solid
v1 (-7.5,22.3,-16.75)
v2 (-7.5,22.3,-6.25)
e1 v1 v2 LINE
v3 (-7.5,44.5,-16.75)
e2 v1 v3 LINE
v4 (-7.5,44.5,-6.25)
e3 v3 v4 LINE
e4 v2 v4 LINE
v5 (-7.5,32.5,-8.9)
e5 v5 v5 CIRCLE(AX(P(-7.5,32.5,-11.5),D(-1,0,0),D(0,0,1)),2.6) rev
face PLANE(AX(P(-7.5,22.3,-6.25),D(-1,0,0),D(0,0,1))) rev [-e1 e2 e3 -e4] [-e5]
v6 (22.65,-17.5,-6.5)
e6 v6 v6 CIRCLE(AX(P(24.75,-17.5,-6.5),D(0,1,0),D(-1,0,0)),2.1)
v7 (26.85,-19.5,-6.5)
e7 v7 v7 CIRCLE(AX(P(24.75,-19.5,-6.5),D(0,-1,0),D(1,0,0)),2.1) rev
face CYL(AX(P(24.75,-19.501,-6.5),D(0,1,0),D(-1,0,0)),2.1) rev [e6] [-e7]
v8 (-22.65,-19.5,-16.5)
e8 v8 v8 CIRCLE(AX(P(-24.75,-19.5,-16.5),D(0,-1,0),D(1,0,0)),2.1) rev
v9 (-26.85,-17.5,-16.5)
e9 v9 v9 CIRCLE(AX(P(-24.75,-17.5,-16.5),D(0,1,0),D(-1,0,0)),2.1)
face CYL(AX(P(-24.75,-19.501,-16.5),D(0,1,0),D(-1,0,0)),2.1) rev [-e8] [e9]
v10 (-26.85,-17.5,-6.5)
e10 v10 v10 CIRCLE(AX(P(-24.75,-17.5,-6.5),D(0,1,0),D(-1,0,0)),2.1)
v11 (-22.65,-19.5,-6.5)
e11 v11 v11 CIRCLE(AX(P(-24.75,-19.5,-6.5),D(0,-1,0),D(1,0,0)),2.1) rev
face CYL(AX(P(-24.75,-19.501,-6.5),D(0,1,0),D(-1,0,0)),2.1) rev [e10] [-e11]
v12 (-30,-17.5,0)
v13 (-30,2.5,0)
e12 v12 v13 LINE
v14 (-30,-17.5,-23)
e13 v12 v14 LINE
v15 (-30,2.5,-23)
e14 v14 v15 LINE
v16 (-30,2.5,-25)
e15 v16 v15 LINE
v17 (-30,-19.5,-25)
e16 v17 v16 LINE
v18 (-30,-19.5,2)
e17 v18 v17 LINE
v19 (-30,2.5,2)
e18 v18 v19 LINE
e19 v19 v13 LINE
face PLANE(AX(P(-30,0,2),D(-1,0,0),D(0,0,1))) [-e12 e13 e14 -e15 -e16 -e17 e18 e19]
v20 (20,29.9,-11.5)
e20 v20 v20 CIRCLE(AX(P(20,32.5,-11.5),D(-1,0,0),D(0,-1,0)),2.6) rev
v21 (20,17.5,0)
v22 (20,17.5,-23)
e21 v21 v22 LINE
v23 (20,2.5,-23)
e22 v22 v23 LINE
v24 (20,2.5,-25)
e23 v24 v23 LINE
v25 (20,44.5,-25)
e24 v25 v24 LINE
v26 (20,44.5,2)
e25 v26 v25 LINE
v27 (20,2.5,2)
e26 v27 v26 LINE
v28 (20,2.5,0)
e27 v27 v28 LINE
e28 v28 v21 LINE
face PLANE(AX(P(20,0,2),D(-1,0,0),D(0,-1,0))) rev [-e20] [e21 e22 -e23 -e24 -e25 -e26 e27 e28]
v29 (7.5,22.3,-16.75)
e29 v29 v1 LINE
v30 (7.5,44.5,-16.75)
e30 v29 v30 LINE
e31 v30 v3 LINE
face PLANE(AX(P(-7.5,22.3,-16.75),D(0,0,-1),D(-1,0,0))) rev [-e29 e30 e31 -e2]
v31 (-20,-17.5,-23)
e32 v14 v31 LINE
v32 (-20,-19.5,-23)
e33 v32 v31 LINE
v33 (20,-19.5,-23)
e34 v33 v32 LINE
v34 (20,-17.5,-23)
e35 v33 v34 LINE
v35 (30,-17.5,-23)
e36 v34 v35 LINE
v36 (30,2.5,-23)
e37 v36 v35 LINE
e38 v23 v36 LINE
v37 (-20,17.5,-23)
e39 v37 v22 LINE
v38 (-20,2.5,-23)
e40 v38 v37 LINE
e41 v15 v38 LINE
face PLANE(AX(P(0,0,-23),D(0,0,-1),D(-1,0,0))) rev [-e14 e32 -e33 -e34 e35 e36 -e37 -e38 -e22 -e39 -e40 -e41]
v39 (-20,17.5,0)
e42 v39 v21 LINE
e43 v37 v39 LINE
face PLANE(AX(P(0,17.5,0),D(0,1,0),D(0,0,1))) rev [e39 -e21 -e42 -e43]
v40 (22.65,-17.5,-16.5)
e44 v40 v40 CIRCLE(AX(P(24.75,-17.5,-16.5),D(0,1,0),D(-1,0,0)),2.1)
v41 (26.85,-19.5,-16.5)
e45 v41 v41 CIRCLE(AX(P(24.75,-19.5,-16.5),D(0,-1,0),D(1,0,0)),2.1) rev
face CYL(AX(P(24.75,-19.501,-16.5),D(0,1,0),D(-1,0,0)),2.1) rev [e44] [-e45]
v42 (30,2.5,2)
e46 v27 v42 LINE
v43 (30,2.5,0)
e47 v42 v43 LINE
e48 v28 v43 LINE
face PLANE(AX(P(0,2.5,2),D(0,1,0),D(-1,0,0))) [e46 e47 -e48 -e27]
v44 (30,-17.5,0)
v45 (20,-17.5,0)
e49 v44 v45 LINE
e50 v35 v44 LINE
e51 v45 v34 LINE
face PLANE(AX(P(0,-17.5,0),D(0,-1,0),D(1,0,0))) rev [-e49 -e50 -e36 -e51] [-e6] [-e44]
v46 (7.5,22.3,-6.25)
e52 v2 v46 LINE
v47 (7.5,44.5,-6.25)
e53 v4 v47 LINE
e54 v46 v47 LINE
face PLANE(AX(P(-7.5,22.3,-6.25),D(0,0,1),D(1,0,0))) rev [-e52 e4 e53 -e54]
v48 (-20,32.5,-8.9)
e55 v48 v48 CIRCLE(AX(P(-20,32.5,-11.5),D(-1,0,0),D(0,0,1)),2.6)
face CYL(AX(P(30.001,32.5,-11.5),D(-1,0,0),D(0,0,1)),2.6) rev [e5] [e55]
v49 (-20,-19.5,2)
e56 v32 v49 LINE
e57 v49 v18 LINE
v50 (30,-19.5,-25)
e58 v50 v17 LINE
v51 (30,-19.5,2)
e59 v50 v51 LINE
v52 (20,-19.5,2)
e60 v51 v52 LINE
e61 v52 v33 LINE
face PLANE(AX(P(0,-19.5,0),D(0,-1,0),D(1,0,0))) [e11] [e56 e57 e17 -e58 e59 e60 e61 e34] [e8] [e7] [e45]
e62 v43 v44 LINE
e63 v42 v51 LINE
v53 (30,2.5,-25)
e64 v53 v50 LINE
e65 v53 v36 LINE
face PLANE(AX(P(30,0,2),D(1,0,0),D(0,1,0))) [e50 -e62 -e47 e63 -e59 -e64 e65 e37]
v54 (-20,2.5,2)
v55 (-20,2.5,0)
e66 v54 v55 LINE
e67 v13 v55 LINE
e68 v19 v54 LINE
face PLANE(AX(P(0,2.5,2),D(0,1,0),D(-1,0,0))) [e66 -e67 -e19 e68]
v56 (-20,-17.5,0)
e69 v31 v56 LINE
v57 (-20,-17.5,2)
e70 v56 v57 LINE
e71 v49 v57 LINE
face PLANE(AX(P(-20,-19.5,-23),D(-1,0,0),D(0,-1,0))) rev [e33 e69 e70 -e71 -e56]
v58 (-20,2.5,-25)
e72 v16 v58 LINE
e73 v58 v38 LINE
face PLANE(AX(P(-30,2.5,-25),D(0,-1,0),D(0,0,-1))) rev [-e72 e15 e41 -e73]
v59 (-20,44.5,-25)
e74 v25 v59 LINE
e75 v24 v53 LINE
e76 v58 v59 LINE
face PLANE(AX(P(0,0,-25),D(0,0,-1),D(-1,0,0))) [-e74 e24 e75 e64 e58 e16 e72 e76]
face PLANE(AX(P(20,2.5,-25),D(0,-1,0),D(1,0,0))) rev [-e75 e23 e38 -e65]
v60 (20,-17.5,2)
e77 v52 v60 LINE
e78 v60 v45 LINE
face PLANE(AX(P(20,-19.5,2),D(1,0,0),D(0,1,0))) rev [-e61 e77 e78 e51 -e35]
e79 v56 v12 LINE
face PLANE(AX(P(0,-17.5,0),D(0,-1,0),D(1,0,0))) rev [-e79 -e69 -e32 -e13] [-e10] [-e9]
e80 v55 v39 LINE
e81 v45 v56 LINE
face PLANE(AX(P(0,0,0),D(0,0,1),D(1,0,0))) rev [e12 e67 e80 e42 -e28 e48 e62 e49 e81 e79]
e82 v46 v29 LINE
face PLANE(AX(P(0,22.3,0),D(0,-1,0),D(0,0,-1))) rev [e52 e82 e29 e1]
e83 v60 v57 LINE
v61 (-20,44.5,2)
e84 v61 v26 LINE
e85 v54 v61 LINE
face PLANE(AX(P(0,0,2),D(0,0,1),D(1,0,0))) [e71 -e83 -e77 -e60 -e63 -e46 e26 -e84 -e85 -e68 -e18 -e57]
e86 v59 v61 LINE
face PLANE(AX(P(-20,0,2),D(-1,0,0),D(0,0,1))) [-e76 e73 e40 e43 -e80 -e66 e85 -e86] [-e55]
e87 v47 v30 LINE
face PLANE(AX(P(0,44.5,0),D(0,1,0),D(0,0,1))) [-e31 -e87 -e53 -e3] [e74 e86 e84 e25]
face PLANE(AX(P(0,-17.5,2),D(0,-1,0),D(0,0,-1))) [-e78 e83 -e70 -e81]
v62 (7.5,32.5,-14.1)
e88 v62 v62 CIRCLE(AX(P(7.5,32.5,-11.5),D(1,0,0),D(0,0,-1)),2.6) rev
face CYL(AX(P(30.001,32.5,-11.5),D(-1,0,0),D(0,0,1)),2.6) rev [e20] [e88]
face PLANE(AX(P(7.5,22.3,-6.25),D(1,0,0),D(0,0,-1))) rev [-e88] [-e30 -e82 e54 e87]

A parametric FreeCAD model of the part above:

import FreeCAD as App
import Part
import Sketcher
from FreeCAD import Vector


def add_polygon(sketch, points):
    """Adds a closed chain of lines whose ends are joined by coincident constraints."""
    first, n = sketch.GeometryCount, len(points)
    for a, b in zip(points, points[1:] + points[:1]):
        sketch.addGeometry(Part.LineSegment(App.Vector(*a, 0), App.Vector(*b, 0)), False)
    for i in range(n):
        sketch.addConstraint(Sketcher.Constraint("Coincident", first + i, 2, first + (i + 1) % n, 1))

doc = App.newDocument("Part")
body = doc.addObject("PartDesign::Body", "Body")

sketch1 = body.newObject("Sketcher::SketchObject", "Sketch")
sketch1.AttachmentSupport = (doc.getObject("XY_Plane"), [""])
sketch1.MapMode = "FlatFace"
add_polygon(sketch1, [(-30, 2), (-30, -18), (30, -18), (30, 2), (20, 2), (20, 18), (-20, 18), (-20, 2)])
sketch1.addConstraint([
    Sketcher.Constraint("Vertical", 0),
    Sketcher.Constraint("Horizontal", 1),
    Sketcher.Constraint("Vertical", 2),
    Sketcher.Constraint("Horizontal", 3),
    Sketcher.Constraint("Vertical", 4),
    Sketcher.Constraint("Horizontal", 5),
    Sketcher.Constraint("Vertical", 6),
    Sketcher.Constraint("Horizontal", 7),
    Sketcher.Constraint("Symmetric", 3, 2, 6, 2, -2),
    Sketcher.Constraint("Equal", 3, 7),
    Sketcher.Constraint("DistanceX", 1, 1, 1, 2, 60.0),
    Sketcher.Constraint("DistanceX", 3, 2, 3, 1, 10.0),
    Sketcher.Constraint("DistanceY", 0, 2, 0, 1, 20.0),
    Sketcher.Constraint("DistanceY", 4, 1, 4, 2, 15.0),
    Sketcher.Constraint("DistanceY", 0, 2, -1, 1, 17.5),
])
pad1 = body.newObject("PartDesign::Pad", "Pad")
pad1.Profile = sketch1
pad1.Length = 2

sketch2 = body.newObject("Sketcher::SketchObject", "Sketch001")
sketch2.AttachmentSupport = (doc.getObject("XZ_Plane"), [""])
sketch2.MapMode = "FlatFace"
sketch2.AttachmentOffset = App.Placement(Vector(0, 0, 17.5), App.Rotation())
add_polygon(sketch2, [(-30, 2), (-30, -23), (-20, -23), (-20, 2)])
add_polygon(sketch2, [(20, 2), (20, -23), (30, -23), (30, 2)])
sketch2.addConstraint([
    Sketcher.Constraint("Vertical", 0),
    Sketcher.Constraint("Horizontal", 1),
    Sketcher.Constraint("Vertical", 2),
    Sketcher.Constraint("Horizontal", 3),
    Sketcher.Constraint("Vertical", 4),
    Sketcher.Constraint("Horizontal", 5),
    Sketcher.Constraint("Vertical", 6),
    Sketcher.Constraint("Horizontal", 7),
    Sketcher.Constraint("Symmetric", 1, 2, 4, 2, -2),
    Sketcher.Constraint("Symmetric", 3, 2, 6, 2, -2),
    Sketcher.Constraint("DistanceX", 1, 1, 1, 2, 10.0),
    Sketcher.Constraint("DistanceY", 0, 2, 0, 1, 25.0),
    Sketcher.Constraint("DistanceX", 0, 2, -1, 1, 30.0),
    Sketcher.Constraint("DistanceY", 0, 2, -1, 1, 23.0),
])
pad2 = body.newObject("PartDesign::Pad", "Pad001")
pad2.Profile = sketch2
pad2.Length = 2

sketch3 = body.newObject("Sketcher::SketchObject", "Sketch002")
sketch3.AttachmentSupport = (doc.getObject("XY_Plane"), [""])
sketch3.MapMode = "FlatFace"
sketch3.AttachmentOffset = App.Placement(Vector(0, 0, -23), App.Rotation())
add_polygon(sketch3, [(-30, -20), (-30, 2), (-20, 2), (-20, 18), (20, 18), (20, 2), (30, 2), (30, -20)])
sketch3.addConstraint([
    Sketcher.Constraint("Vertical", 0),
    Sketcher.Constraint("Horizontal", 1),
    Sketcher.Constraint("Vertical", 2),
    Sketcher.Constraint("Horizontal", 3),
    Sketcher.Constraint("Vertical", 4),
    Sketcher.Constraint("Horizontal", 5),
    Sketcher.Constraint("Vertical", 6),
    Sketcher.Constraint("Horizontal", 7),
    Sketcher.Constraint("Symmetric", 1, 2, 4, 2, -2),
    Sketcher.Constraint("Equal", 1, 5),
    Sketcher.Constraint("DistanceX", 1, 1, 1, 2, 10.0),
    Sketcher.Constraint("DistanceX", 3, 1, 3, 2, 40.0),
    Sketcher.Constraint("DistanceY", 0, 1, 0, 2, 22.0),
    Sketcher.Constraint("DistanceY", 2, 1, 2, 2, 15.0),
    Sketcher.Constraint("DistanceY", -1, 1, 0, 2, 2.5),
])
pad3 = body.newObject("PartDesign::Pad", "Pad002")
pad3.Profile = sketch3
pad3.Length = 2
pad3.Reversed = True

sketch4 = body.newObject("Sketcher::SketchObject", "Sketch003")
sketch4.AttachmentSupport = (doc.getObject("XZ_Plane"), [""])
sketch4.MapMode = "FlatFace"
sketch4.AttachmentOffset = App.Placement(Vector(0, 0, 17.5), App.Rotation())
sketch4.addGeometry(Part.Circle(Vector(24.8, -16.5, 0), Vector(0, 0, 1), 2.1), False)
sketch4.addConstraint([
    Sketcher.Constraint("Diameter", 0, 4.2),
    Sketcher.Constraint("DistanceY", 0, 3, -1, 1, 16.5),
    Sketcher.Constraint("DistanceX", -1, 1, 0, 3, 24.75),
])
pocket1 = body.newObject("PartDesign::Pocket", "Pocket")
pocket1.Profile = sketch4
pocket1.Type = "UpToFirst"
pocket1.Reversed = True

sketch5 = body.newObject("Sketcher::SketchObject", "Sketch004")
sketch5.AttachmentSupport = (doc.getObject("XZ_Plane"), [""])
sketch5.MapMode = "FlatFace"
sketch5.AttachmentOffset = App.Placement(Vector(0, 0, 17.5), App.Rotation())
sketch5.addGeometry(Part.Circle(Vector(24.8, -6.5, 0), Vector(0, 0, 1), 2.1), False)
sketch5.addConstraint([
    Sketcher.Constraint("Diameter", 0, 4.2),
    Sketcher.Constraint("DistanceY", 0, 3, -1, 1, 6.5),
    Sketcher.Constraint("DistanceX", -1, 1, 0, 3, 24.75),
])
pocket2 = body.newObject("PartDesign::Pocket", "Pocket001")
pocket2.Profile = sketch5
pocket2.Type = "UpToFirst"
pocket2.Reversed = True

sketch6 = body.newObject("Sketcher::SketchObject", "Sketch005")
sketch6.AttachmentSupport = (doc.getObject("XZ_Plane"), [""])
sketch6.MapMode = "FlatFace"
sketch6.AttachmentOffset = App.Placement(Vector(0, 0, 17.5), App.Rotation())
sketch6.addGeometry(Part.Circle(Vector(-24.8, -16.5, 0), Vector(0, 0, 1), 2.1), False)
sketch6.addConstraint([
    Sketcher.Constraint("Diameter", 0, 4.2),
    Sketcher.Constraint("DistanceY", 0, 3, -1, 1, 16.5),
    Sketcher.Constraint("DistanceX", 0, 3, -1, 1, 24.75),
])
pocket3 = body.newObject("PartDesign::Pocket", "Pocket002")
pocket3.Profile = sketch6
pocket3.Type = "UpToFirst"
pocket3.Reversed = True

sketch7 = body.newObject("Sketcher::SketchObject", "Sketch006")
sketch7.AttachmentSupport = (doc.getObject("XZ_Plane"), [""])
sketch7.MapMode = "FlatFace"
sketch7.AttachmentOffset = App.Placement(Vector(0, 0, 17.5), App.Rotation())
sketch7.addGeometry(Part.Circle(Vector(-24.8, -6.5, 0), Vector(0, 0, 1), 2.1), False)
sketch7.addConstraint([
    Sketcher.Constraint("Diameter", 0, 4.2),
    Sketcher.Constraint("DistanceY", 0, 3, -1, 1, 6.5),
    Sketcher.Constraint("DistanceX", 0, 3, -1, 1, 24.75),
])
pocket4 = body.newObject("PartDesign::Pocket", "Pocket003")
pocket4.Profile = sketch7
pocket4.Type = "UpToFirst"
pocket4.Reversed = True

sketch8 = body.newObject("Sketcher::SketchObject", "Sketch007")
sketch8.AttachmentSupport = (doc.getObject("XZ_Plane"), [""])
sketch8.MapMode = "FlatFace"
sketch8.AttachmentOffset = App.Placement(Vector(0, 0, -17.5), App.Rotation())
add_polygon(sketch8, [(-20, 2), (20, 2), (20, -25), (-20, -25)])
sketch8.addConstraint([
    Sketcher.Constraint("Horizontal", 0),
    Sketcher.Constraint("Vertical", 1),
    Sketcher.Constraint("Horizontal", 2),
    Sketcher.Constraint("Vertical", 3),
    Sketcher.Constraint("DistanceX", 0, 1, 0, 2, 40.0),
    Sketcher.Constraint("DistanceY", 1, 2, 1, 1, 27.0),
    Sketcher.Constraint("DistanceX", -1, 1, 0, 2, 20.0),
    Sketcher.Constraint("DistanceY", -1, 1, 0, 2, 2.0),
])
pad4 = body.newObject("PartDesign::Pad", "Pad003")
pad4.Profile = sketch8
pad4.Length = 2
pad4.Reversed = True

sketch9 = body.newObject("Sketcher::SketchObject", "Sketch008")
sketch9.AttachmentSupport = (doc.getObject("XZ_Plane"), [""])
sketch9.MapMode = "FlatFace"
sketch9.AttachmentOffset = App.Placement(Vector(0, 0, -19.5), App.Rotation())
add_polygon(sketch9, [(-20, -25), (-20, 2), (20, 2), (20, -25)])
sketch9.addConstraint([
    Sketcher.Constraint("Vertical", 0),
    Sketcher.Constraint("Horizontal", 1),
    Sketcher.Constraint("Vertical", 2),
    Sketcher.Constraint("Horizontal", 3),
    Sketcher.Constraint("DistanceX", 1, 1, 1, 2, 40.0),
    Sketcher.Constraint("DistanceY", 0, 1, 0, 2, 27.0),
    Sketcher.Constraint("DistanceX", 0, 2, -1, 1, 20.0),
    Sketcher.Constraint("DistanceY", -1, 1, 0, 2, 2.0),
])
pad5 = body.newObject("PartDesign::Pad", "Pad004")
pad5.Profile = sketch9
pad5.Length = 25
pad5.Reversed = True

sketch10 = body.newObject("Sketcher::SketchObject", "Sketch009")
sketch10.AttachmentSupport = (doc.getObject("YZ_Plane"), [""])
sketch10.MapMode = "FlatFace"
sketch10.AttachmentOffset = App.Placement(Vector(0, 0, -20), App.Rotation())
sketch10.addGeometry(Part.Circle(Vector(32.5, -11.5, 0), Vector(0, 0, 1), 2.6), False)
sketch10.addConstraint([
    Sketcher.Constraint("Diameter", 0, 5.2),
    Sketcher.Constraint("DistanceX", -1, 1, 0, 3, 32.5),
    Sketcher.Constraint("DistanceY", 0, 3, -1, 1, 11.5),
])
pocket5 = body.newObject("PartDesign::Pocket", "Pocket004")
pocket5.Profile = sketch10
pocket5.Type = "UpToFirst"
pocket5.Reversed = True

sketch11 = body.newObject("Sketcher::SketchObject", "Sketch010")
sketch11.AttachmentSupport = (doc.getObject("XZ_Plane"), [""])
sketch11.MapMode = "FlatFace"
sketch11.AttachmentOffset = App.Placement(Vector(0, 0, -44.5), App.Rotation())
add_polygon(sketch11, [(-8, -17), (-8, -6), (8, -6), (8, -17)])
sketch11.addConstraint([
    Sketcher.Constraint("Vertical", 0),
    Sketcher.Constraint("Horizontal", 1),
    Sketcher.Constraint("Vertical", 2),
    Sketcher.Constraint("Horizontal", 3),
    Sketcher.Constraint("DistanceX", 1, 1, 1, 2, 15.0),
    Sketcher.Constraint("DistanceY", 0, 1, 0, 2, 10.5),
    Sketcher.Constraint("DistanceX", 0, 2, -1, 1, 7.5),
    Sketcher.Constraint("DistanceY", 0, 2, -1, 1, 6.25),
])
pocket6 = body.newObject("PartDesign::Pocket", "Pocket005")
pocket6.Profile = sketch11
pocket6.Length = 22.2
pocket6.Reversed = True

doc.recompute()
